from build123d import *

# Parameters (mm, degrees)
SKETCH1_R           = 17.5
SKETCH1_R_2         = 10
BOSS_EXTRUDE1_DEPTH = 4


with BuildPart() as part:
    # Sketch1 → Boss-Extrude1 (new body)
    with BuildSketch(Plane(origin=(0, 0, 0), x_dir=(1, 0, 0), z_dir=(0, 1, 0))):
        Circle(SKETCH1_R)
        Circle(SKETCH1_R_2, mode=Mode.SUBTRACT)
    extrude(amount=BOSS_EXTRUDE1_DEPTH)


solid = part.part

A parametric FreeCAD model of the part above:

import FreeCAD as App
import Part
import Sketcher
from FreeCAD import Vector
Q = App.Units.Quantity

doc = App.newDocument("Part")
body = doc.addObject("PartDesign::Body", "Body")

# Sketch on XZ plane
sketch1 = body.newObject("Sketcher::SketchObject", "Sketch")
sketch1.AttachmentSupport = (doc.getObject("XZ_Plane"), [""])
sketch1.MapMode = "FlatFace"
sketch1.addGeometry(Part.Circle(Vector(0, 0, 0), Vector(0, 0, 1), 17.5), False)
sketch1.addGeometry(Part.Circle(Vector(0, 0, 0), Vector(0, 0, 1), 10), False)
sketch1.addConstraint(Sketcher.Constraint("Coincident", 0, 3, -1, 1))
sketch1.addConstraint(Sketcher.Constraint("Coincident", 1, 3, -1, 1))
sketch1.addConstraint(Sketcher.Constraint("Diameter", 0, Q("35 mm")))
sketch1.addConstraint(Sketcher.Constraint("Diameter", 1, Q("20 mm")))
pad1 = body.newObject("PartDesign::Pad", "Pad")
pad1.Profile = sketch1
pad1.Length = 4
pad1.Reversed = True

doc.recompute()
